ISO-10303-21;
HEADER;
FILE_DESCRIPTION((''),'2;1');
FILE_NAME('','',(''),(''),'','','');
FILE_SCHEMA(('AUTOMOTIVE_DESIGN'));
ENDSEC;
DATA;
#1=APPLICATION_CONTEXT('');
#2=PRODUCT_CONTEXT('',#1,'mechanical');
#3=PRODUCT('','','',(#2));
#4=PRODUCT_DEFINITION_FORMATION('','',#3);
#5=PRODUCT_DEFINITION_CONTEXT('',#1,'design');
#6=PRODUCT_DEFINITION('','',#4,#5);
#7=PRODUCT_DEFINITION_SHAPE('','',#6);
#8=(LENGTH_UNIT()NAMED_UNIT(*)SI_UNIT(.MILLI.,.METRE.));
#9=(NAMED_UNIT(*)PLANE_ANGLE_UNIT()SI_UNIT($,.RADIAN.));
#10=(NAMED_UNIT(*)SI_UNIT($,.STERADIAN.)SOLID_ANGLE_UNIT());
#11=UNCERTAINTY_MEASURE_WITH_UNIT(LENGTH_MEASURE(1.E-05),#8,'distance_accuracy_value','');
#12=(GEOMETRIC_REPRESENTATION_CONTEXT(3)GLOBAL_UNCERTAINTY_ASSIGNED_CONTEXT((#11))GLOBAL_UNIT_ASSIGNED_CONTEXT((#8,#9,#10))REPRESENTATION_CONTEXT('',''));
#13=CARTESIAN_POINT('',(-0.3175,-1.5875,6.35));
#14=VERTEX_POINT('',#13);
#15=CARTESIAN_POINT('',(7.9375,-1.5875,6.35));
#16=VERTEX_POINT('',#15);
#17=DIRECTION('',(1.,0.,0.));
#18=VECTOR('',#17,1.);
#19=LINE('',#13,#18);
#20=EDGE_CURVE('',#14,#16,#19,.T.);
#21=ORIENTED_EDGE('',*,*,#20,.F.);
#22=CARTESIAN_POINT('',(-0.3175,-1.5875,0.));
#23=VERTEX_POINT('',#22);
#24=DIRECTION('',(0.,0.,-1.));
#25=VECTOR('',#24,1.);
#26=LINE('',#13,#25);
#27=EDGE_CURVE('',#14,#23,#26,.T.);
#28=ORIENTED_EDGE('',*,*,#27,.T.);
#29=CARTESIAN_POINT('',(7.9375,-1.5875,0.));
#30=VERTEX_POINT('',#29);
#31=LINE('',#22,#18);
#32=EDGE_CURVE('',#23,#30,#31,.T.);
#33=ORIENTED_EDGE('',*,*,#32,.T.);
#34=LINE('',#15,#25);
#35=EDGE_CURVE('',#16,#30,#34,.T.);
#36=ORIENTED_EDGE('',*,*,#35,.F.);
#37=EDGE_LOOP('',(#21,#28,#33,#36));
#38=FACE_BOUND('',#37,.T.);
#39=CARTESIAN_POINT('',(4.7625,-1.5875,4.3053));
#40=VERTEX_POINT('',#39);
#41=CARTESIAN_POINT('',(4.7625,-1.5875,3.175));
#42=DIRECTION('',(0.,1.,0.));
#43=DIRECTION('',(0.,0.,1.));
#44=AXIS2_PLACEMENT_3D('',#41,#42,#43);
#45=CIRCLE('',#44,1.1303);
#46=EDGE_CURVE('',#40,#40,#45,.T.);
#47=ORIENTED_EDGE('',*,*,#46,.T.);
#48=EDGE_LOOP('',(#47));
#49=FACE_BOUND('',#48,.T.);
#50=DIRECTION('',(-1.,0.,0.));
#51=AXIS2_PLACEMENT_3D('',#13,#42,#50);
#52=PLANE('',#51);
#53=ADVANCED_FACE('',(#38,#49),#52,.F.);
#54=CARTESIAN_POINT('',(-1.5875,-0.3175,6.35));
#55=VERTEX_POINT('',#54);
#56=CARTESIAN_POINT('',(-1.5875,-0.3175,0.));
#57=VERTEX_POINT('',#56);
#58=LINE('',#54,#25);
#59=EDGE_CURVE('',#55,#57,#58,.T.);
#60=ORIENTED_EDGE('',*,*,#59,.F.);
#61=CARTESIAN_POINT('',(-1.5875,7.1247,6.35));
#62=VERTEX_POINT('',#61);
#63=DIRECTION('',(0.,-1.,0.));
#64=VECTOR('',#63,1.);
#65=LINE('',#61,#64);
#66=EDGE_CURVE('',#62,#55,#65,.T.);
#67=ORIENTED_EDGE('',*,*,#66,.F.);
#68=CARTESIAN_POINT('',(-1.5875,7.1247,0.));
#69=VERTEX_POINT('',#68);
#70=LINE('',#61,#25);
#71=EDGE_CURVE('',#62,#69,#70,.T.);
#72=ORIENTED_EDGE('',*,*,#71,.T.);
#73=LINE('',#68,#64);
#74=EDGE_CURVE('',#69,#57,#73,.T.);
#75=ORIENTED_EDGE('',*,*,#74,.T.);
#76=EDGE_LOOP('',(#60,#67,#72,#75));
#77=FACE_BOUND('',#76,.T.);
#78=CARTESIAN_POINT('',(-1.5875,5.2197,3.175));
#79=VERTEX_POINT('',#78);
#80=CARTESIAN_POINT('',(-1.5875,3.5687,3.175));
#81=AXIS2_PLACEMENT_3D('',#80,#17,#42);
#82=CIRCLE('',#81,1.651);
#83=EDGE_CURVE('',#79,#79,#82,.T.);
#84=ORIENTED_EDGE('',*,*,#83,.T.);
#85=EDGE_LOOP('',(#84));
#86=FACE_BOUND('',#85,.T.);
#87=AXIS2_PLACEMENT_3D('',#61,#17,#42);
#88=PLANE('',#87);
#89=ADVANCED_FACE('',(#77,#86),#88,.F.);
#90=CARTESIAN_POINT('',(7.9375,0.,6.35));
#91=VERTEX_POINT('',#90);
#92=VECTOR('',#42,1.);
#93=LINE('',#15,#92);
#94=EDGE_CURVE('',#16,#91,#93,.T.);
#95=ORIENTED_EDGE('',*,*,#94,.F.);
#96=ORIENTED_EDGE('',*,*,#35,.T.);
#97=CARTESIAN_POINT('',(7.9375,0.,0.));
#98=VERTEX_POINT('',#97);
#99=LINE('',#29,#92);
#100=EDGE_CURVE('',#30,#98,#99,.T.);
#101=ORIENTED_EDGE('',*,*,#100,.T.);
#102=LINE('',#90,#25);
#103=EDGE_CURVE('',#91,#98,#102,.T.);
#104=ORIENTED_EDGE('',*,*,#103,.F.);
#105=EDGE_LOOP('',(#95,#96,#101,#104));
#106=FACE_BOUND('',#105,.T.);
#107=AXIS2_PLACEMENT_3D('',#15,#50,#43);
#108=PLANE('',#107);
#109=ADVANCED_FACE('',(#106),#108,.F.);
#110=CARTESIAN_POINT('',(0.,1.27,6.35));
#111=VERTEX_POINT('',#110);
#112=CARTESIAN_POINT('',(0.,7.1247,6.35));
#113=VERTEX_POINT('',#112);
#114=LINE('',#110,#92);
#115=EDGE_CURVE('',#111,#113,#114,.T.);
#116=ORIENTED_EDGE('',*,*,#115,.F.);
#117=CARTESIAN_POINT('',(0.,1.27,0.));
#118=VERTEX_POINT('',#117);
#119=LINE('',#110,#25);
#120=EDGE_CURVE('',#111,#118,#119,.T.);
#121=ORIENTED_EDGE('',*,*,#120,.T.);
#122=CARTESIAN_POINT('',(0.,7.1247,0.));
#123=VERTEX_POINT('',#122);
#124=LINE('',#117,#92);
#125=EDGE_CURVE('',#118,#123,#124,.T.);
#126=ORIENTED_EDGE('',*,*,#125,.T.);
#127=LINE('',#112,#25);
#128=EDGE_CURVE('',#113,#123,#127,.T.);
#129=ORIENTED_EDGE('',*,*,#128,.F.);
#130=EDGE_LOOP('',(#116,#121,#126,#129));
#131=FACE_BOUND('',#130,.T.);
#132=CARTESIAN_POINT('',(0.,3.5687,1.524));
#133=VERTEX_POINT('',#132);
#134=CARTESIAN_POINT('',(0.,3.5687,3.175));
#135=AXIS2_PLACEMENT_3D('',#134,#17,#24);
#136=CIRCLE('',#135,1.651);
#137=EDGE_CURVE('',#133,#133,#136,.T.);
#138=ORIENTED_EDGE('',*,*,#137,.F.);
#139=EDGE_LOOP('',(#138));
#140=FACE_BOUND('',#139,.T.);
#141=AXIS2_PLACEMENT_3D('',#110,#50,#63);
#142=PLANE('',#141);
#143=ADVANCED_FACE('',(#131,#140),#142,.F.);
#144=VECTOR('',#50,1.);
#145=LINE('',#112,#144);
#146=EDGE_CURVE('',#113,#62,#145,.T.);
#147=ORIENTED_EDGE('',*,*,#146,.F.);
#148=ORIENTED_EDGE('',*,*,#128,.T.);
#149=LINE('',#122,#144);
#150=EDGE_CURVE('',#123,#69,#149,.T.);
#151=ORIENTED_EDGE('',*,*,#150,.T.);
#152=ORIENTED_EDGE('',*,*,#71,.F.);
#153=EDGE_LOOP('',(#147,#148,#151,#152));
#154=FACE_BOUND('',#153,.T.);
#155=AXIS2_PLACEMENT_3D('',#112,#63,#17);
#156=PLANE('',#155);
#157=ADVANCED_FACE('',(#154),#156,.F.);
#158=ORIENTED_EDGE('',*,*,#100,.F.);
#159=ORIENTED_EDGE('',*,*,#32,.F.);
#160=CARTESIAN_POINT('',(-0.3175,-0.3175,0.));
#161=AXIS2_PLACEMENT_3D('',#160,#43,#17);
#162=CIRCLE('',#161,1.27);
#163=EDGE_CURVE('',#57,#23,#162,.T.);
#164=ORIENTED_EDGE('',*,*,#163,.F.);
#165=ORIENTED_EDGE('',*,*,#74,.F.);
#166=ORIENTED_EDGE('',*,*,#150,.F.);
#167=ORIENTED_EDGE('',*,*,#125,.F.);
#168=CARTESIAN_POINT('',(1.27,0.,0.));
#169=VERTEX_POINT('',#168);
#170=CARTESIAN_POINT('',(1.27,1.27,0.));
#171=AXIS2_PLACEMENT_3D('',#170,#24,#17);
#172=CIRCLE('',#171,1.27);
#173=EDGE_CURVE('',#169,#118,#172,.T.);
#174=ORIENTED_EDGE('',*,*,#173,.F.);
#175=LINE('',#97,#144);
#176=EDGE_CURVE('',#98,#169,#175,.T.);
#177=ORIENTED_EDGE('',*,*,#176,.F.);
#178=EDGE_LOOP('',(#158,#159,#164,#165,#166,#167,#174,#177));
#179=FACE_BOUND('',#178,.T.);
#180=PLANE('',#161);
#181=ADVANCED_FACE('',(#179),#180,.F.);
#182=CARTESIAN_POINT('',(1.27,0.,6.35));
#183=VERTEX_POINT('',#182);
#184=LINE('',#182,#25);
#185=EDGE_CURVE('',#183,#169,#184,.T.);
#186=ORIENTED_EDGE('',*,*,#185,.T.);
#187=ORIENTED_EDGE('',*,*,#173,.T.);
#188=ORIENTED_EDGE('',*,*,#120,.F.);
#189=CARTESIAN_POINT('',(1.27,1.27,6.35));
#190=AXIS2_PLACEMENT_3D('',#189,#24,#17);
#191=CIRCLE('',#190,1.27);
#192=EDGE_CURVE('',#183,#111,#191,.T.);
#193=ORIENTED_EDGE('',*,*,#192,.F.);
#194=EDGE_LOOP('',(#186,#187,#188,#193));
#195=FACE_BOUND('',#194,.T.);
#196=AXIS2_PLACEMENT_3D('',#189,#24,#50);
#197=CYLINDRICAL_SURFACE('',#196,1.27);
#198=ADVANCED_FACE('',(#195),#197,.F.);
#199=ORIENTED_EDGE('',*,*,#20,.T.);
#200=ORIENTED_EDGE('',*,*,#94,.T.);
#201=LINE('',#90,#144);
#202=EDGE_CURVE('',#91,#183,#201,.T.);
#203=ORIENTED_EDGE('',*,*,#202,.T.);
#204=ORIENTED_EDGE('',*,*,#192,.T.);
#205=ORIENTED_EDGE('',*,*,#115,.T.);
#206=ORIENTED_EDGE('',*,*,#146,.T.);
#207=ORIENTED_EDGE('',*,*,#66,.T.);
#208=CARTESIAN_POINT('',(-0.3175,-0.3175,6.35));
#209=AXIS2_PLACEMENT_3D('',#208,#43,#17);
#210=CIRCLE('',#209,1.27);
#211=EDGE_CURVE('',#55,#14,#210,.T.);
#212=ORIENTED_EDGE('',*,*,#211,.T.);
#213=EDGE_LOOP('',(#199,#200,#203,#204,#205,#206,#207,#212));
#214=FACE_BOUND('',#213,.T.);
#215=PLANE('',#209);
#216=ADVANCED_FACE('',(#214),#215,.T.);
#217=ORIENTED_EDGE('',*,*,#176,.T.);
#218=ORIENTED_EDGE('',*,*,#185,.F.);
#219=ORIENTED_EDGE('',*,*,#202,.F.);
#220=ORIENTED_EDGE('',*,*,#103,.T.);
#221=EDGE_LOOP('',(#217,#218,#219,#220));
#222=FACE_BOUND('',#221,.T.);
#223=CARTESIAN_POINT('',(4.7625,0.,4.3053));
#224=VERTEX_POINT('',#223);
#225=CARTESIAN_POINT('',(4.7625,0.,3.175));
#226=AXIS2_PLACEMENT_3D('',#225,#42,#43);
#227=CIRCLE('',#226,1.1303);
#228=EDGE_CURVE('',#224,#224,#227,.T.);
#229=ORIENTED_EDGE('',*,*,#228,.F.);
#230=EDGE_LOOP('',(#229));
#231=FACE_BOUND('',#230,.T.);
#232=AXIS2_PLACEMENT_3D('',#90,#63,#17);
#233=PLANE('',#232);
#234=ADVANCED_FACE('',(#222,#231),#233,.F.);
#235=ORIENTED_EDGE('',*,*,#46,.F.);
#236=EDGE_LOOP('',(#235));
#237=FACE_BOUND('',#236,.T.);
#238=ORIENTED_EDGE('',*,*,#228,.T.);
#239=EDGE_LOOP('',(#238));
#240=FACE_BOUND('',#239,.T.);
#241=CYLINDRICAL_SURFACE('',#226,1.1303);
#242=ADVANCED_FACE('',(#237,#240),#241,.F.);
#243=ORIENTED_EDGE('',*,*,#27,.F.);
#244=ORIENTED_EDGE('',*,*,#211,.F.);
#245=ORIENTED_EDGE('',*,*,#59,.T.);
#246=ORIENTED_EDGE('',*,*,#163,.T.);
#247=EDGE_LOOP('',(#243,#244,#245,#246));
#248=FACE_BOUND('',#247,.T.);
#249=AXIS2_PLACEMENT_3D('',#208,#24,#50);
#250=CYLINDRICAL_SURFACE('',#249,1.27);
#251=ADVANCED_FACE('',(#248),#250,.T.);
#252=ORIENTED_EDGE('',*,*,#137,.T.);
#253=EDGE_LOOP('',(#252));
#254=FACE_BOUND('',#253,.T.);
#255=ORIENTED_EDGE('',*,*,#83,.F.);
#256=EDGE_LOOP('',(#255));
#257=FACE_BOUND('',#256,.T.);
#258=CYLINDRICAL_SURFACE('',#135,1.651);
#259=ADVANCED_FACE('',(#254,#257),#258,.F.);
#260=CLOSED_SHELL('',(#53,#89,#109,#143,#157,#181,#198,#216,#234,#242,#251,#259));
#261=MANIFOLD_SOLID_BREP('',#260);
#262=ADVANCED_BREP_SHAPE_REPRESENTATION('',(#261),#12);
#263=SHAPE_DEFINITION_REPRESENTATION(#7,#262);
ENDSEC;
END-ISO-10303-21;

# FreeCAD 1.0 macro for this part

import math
import FreeCAD as App
import Part
import Sketcher

V = App.Vector
Q = App.Units.Quantity

doc = App.newDocument("Part")
params = doc.addObject("Spreadsheet::Sheet", "Params")
for row, (alias, value) in enumerate([
    ("sketch1_radius", "0.05 in"),
    ("sketch1_width", "0.0625 in"),
    ("sketch1_width2", "0.325 in"),
    ("sketch1_height", "0.293 in"),
    ("pad1_length", "0.25 in"),
    ("sketch2_diameter", "0.13 in"),
    ("hole_diameter", "0.13 in"),
    ("hole_depth", "2.25 in"),
    ("sketch3_diameter", "0.089 in"),
    ("hole2_diameter", "0.089 in"),
], start=1):
    params.set(f"A{row}", alias)
    params.set(f"B{row}", "=" + value)
    params.setAlias(f"B{row}", alias)

body = doc.addObject("PartDesign::Body", "Body")

# Sketch on XY plane
sketch1 = doc.addObject("Sketcher::SketchObject", "Sketch")
body.addObject(sketch1)
sketch1.AttachmentSupport = (doc.XY_Plane, [""])
sketch1.MapMode = "FlatFace"
sketch1.addGeometry(Part.LineSegment(V(0, 1.3, 0), V(0, 7.1, 0)), False)
sketch1.addGeometry(Part.LineSegment(V(0, 7.1, 0), V(-1.6, 7.1, 0)), False)
sketch1.addGeometry(Part.LineSegment(V(-1.6, 7.1, 0), V(-1.6, -0.3, 0)), False)
sketch1.addGeometry(Part.ArcOfCircle(Part.Circle(V(-0.3, -0.3, 0), V(0, 0, 1), 1.3), math.radians(180), math.radians(270)), False)
sketch1.addGeometry(Part.LineSegment(V(-0.3, -1.6, 0), V(7.9, -1.6, 0)), False)
sketch1.addGeometry(Part.LineSegment(V(7.9, -1.6, 0), V(7.9, 0, 0)), False)
sketch1.addGeometry(Part.LineSegment(V(7.9, 0, 0), V(1.3, 0, 0)), False)
sketch1.addGeometry(Part.ArcOfCircle(Part.Circle(V(1.3, 1.3, 0), V(0, 0, 1), 1.3), math.radians(180), math.radians(270)), False)
sketch1.addConstraint(Sketcher.Constraint("Coincident", 0, 2, 1, 1))
sketch1.addConstraint(Sketcher.Constraint("Coincident", 1, 2, 2, 1))
sketch1.addConstraint(Sketcher.Constraint("Tangent", 2, 2, 3, 1))
sketch1.addConstraint(Sketcher.Constraint("Tangent", 3, 2, 4, 1))
sketch1.addConstraint(Sketcher.Constraint("Coincident", 4, 2, 5, 1))
sketch1.addConstraint(Sketcher.Constraint("Coincident", 5, 2, 6, 1))
sketch1.addConstraint(Sketcher.Constraint("Tangent", 6, 2, 7, 2))
sketch1.addConstraint(Sketcher.Constraint("Tangent", 7, 1, 0, 1))
sketch1.addConstraint(Sketcher.Constraint("Vertical", 0))
sketch1.addConstraint(Sketcher.Constraint("Horizontal", 1))
sketch1.addConstraint(Sketcher.Constraint("Vertical", 2))
sketch1.addConstraint(Sketcher.Constraint("Horizontal", 4))
sketch1.addConstraint(Sketcher.Constraint("Vertical", 5))
sketch1.addConstraint(Sketcher.Constraint("Horizontal", 6))
sketch1.addConstraint(Sketcher.Constraint("Equal", 3, 7))
sketch1.addConstraint(Sketcher.Constraint("PointOnObject", 0, 2, -2))
sketch1.addConstraint(Sketcher.Constraint("PointOnObject", 5, 2, -1))
sketch1.addConstraint(Sketcher.Constraint("Equal", 1, 5))
sketch1.addConstraint(Sketcher.Constraint("Radius", 3, Q("0.05 in")))
sketch1.addConstraint(Sketcher.Constraint("DistanceX", 1, 2, 1, 1, Q("0.0625 in")))
sketch1.addConstraint(Sketcher.Constraint("DistanceX", 4, 1, 4, 2, Q("0.325 in")))
sketch1.addConstraint(Sketcher.Constraint("DistanceY", 2, 2, 2, 1, Q("0.293 in")))
sketch1.setExpression("Constraints[18]", "Params.sketch1_radius")
sketch1.setExpression("Constraints[19]", "Params.sketch1_width")
sketch1.setExpression("Constraints[20]", "Params.sketch1_width2")
sketch1.setExpression("Constraints[21]", "Params.sketch1_height")
pad1 = doc.addObject("PartDesign::Pad", "Pad")
body.addObject(pad1)
pad1.Profile = sketch1
pad1.setExpression("Length", "Params.pad1_length")

# Sketch on YZ plane
sketch2 = doc.addObject("Sketcher::SketchObject", "Sketch001")
body.addObject(sketch2)
sketch2.AttachmentSupport = (doc.YZ_Plane, [""])
sketch2.MapMode = "FlatFace"
sketch2.addGeometry(Part.Circle(V(3.6, 3.2, 0), V(0, 0, 1), 1.7), False)
sketch2.addConstraint(Sketcher.Constraint("Diameter", 0, Q("0.13 in")))
sketch2.addConstraint(Sketcher.Constraint("DistanceY", -1, 1, 0, 3, Q("0.125 in")))
sketch2.addConstraint(Sketcher.Constraint("DistanceX", -1, 1, 0, 3, Q("0.1405 in")))
sketch2.setExpression("Constraints[0]", "Params.sketch2_diameter")
doc.recompute()
hole = doc.addObject("PartDesign::Hole", "Hole")
body.addObject(hole)
hole.Profile = sketch2
hole.ThreadType = "None"
hole.setExpression("Diameter", "Params.hole_diameter")
hole.DepthType = "Dimension"
hole.setExpression("Depth", "Params.hole_depth")
hole.DrillPoint = "Angled"
hole.DrillPointAngle = 118

# Sketch on XZ plane
sketch3 = doc.addObject("Sketcher::SketchObject", "Sketch002")
body.addObject(sketch3)
sketch3.AttachmentSupport = (doc.XZ_Plane, [""])
sketch3.MapMode = "FlatFace"
sketch3.addGeometry(Part.Circle(V(4.8, 3.2, 0), V(0, 0, 1), 1.1), False)
sketch3.addConstraint(Sketcher.Constraint("Diameter", 0, Q("0.089 in")))
sketch3.addConstraint(Sketcher.Constraint("DistanceX", -1, 1, 0, 3, Q("0.1875 in")))
sketch3.addConstraint(Sketcher.Constraint("DistanceY", -1, 1, 0, 3, Q("0.125 in")))
sketch3.setExpression("Constraints[0]", "Params.sketch3_diameter")
doc.recompute()
hole2 = doc.addObject("PartDesign::Hole", "Hole001")
body.addObject(hole2)
hole2.Profile = sketch3
hole2.ThreadType = "None"
hole2.setExpression("Diameter", "Params.hole2_diameter")
hole2.DepthType = "ThroughAll"
hole2.Reversed = True

doc.recompute()
